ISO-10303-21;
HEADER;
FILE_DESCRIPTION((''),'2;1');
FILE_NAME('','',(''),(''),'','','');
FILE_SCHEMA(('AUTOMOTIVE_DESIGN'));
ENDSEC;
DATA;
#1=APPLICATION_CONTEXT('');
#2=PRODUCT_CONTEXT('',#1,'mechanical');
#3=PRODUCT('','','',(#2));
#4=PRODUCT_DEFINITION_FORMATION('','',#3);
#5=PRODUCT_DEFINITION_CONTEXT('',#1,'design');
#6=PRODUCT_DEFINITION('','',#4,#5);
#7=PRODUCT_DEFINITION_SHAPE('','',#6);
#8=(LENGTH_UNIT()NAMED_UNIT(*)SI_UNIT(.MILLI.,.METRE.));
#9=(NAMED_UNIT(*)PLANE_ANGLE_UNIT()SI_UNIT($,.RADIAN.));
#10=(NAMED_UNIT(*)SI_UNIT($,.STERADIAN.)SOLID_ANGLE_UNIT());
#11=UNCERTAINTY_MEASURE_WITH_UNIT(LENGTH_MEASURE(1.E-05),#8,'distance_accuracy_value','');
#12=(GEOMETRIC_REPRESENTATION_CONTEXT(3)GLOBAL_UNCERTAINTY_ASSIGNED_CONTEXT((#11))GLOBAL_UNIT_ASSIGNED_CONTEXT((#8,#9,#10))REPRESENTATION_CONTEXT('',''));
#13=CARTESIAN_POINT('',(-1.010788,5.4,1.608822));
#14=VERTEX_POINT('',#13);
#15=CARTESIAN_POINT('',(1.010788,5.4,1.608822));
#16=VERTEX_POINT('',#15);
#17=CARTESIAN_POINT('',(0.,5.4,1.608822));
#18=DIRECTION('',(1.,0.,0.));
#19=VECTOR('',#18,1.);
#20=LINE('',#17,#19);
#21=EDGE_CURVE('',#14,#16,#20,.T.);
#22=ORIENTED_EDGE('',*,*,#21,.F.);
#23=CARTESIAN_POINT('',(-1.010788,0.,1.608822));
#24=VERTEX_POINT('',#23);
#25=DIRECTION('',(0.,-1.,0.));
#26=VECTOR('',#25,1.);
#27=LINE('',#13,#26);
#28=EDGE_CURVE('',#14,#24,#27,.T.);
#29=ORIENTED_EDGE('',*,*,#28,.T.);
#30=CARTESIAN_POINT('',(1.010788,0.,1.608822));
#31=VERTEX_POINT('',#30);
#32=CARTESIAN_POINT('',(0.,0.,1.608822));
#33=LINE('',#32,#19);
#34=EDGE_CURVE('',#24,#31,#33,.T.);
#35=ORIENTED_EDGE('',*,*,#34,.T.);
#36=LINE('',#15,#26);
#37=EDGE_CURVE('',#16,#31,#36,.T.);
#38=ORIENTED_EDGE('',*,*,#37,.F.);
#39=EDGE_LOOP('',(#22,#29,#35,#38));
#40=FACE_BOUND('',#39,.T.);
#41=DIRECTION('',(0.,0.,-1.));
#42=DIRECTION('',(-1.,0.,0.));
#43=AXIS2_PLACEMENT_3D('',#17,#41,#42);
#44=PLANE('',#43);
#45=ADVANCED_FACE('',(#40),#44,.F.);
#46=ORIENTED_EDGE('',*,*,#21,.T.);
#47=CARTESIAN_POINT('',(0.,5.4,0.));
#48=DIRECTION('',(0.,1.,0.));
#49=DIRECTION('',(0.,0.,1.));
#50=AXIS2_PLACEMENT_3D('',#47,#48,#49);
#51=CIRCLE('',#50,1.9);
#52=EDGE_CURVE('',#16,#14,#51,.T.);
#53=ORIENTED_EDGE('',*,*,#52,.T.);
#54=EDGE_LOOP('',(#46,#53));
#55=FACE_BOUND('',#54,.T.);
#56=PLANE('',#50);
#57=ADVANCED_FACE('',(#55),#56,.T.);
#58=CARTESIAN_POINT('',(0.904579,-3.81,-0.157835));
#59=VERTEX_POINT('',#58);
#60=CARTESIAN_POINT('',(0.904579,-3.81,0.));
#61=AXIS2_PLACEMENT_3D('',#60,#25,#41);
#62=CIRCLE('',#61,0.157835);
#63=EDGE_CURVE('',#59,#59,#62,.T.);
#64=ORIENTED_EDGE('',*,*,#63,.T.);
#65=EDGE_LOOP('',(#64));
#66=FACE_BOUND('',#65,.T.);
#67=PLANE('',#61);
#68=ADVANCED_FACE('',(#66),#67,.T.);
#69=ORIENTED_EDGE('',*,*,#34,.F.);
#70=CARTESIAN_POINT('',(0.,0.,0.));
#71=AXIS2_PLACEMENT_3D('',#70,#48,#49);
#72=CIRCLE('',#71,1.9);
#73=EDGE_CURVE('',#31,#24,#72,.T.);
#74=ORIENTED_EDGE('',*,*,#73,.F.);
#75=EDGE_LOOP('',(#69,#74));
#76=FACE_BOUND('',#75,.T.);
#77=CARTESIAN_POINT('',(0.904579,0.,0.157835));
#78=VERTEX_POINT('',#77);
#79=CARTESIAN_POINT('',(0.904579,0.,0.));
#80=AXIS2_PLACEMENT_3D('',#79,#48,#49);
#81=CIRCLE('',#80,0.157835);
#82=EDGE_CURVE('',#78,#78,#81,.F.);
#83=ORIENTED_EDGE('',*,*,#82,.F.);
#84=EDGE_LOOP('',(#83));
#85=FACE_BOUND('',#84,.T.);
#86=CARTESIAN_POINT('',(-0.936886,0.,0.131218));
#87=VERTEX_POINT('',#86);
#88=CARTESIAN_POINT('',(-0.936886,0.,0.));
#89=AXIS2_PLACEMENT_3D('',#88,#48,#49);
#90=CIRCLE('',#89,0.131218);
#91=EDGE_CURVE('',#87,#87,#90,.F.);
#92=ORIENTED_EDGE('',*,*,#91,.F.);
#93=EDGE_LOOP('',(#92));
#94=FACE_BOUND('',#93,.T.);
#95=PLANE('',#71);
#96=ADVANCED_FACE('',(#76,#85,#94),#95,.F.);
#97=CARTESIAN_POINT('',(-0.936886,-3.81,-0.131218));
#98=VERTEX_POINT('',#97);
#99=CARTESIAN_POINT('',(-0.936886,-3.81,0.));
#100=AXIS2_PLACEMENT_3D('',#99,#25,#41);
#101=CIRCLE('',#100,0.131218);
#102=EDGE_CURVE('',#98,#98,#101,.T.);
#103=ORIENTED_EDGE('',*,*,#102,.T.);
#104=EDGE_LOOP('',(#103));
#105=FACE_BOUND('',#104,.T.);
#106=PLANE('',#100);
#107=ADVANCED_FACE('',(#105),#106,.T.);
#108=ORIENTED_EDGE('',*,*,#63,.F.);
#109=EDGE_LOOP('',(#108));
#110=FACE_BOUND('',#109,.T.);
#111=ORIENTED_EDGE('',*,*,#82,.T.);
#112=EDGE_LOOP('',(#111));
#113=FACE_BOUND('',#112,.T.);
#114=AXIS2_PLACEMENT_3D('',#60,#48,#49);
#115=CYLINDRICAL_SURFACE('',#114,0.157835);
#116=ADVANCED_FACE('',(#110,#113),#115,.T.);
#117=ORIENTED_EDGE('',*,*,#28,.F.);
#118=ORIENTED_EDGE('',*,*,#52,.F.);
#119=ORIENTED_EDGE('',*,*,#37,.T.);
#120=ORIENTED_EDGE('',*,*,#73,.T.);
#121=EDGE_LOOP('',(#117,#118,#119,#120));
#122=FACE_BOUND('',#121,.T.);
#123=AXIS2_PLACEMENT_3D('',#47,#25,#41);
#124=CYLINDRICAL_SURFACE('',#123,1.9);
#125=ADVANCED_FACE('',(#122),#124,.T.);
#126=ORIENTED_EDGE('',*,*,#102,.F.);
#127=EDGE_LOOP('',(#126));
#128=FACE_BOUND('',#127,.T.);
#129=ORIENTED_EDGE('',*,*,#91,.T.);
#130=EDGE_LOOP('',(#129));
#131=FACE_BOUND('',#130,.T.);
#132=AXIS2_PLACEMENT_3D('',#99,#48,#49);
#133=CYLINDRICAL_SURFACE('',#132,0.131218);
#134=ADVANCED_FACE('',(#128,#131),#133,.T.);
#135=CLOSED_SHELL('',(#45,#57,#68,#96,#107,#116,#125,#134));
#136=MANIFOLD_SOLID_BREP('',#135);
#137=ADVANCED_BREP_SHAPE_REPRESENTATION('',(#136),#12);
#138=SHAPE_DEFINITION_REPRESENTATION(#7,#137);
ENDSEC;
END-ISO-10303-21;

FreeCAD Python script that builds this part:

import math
import FreeCAD as App
import Part
import Sketcher

V = App.Vector

doc = App.newDocument("Part")
body = doc.addObject("PartDesign::Body", "Body")

# Sketch on XZ plane
sketch1 = doc.addObject("Sketcher::SketchObject", "Sketch")
body.addObject(sketch1)
sketch1.AttachmentSupport = (doc.XZ_Plane, [""])
sketch1.MapMode = "FlatFace"
sketch1.addGeometry([
    Part.LineSegment(V(-1, 1.6, 0), V(1, 1.6, 0)),
    Part.ArcOfCircle(Part.Circle(V(0, 0, 0), V(0, 0, 1), 1.9), math.radians(122), math.radians(418)),
], False)
sketch1.addConstraint([
    Sketcher.Constraint("Coincident", 0, 1, 1, 1),
    Sketcher.Constraint("Coincident", 1, 2, 0, 2),
    Sketcher.Constraint("Horizontal", 0),
    Sketcher.Constraint("Coincident", 1, 3, -1, 1),
    Sketcher.Constraint("Radius", 1, 1.9),
    Sketcher.Constraint("DistanceX", 0, 1, 0, 2, 2.021575),
])
pad1 = doc.addObject("PartDesign::Pad", "Pad")
body.addObject(pad1)
pad1.Profile = sketch1
pad1.Length = 5.4
pad1.Reversed = True

# Sketch on XZ plane
sketch2 = doc.addObject("Sketcher::SketchObject", "Sketch001")
body.addObject(sketch2)
sketch2.AttachmentSupport = (doc.XZ_Plane, [""])
sketch2.MapMode = "FlatFace"
sketch2.addGeometry([
    Part.Circle(V(0.9, 0, 0), V(0, 0, 1), 0.16),
    Part.Circle(V(-0.94, 0, 0), V(0, 0, 1), 0.13),
], False)
sketch2.addConstraint([
    Sketcher.Constraint("PointOnObject", 0, 3, -1),
    Sketcher.Constraint("PointOnObject", 1, 3, -1),
    Sketcher.Constraint("Diameter", 0, 0.315671),
    Sketcher.Constraint("Diameter", 1, 0.262435),
    Sketcher.Constraint("DistanceX", -1, 1, 0, 3, 0.904579),
    Sketcher.Constraint("DistanceX", 1, 3, -1, 1, 0.936886),
])
pad2 = doc.addObject("PartDesign::Pad", "Pad001")
body.addObject(pad2)
pad2.Profile = sketch2
pad2.Length = 3.81

doc.recompute()
